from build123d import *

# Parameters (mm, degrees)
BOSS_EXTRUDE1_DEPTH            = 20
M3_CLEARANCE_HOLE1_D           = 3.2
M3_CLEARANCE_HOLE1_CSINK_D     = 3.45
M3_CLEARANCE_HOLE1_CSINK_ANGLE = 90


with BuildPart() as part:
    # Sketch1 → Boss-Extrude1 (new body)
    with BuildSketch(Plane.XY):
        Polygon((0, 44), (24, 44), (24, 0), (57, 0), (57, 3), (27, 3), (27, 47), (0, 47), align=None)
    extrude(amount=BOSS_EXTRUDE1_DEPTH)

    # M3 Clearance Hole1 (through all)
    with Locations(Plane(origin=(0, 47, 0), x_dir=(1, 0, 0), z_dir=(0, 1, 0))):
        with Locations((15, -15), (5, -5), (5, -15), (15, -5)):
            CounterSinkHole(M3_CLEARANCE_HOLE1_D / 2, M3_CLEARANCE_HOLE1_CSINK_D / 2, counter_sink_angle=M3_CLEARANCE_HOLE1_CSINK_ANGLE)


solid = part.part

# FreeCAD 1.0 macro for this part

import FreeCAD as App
import Part
import Sketcher
from FreeCAD import Vector


def add_polygon(sketch, points):
    """Adds a closed chain of lines whose ends are joined by coincident constraints."""
    first, n = sketch.GeometryCount, len(points)
    for a, b in zip(points, points[1:] + points[:1]):
        sketch.addGeometry(Part.LineSegment(App.Vector(*a, 0), App.Vector(*b, 0)), False)
    for i in range(n):
        sketch.addConstraint(Sketcher.Constraint("Coincident", first + i, 2, first + (i + 1) % n, 1))

doc = App.newDocument("Part")
params = doc.addObject("Spreadsheet::Sheet", "Params")
for row, (alias, value) in enumerate([
    ("sketch1_width", "24 mm"),
    ("sketch1_width2", "33 mm"),
    ("sketch1_width3", "30 mm"),
    ("sketch1_height", "44 mm"),
    ("sketch1_height2", "3 mm"),
    ("pad1_length", "20 mm"),
    ("sketch2_diameter", "3.2 mm"),
    ("hole_diameter", "3.2 mm"),
    ("hole_csink_diameter", "3.45 mm"),
], start=1):
    params.set(f"A{row}", alias)
    params.set(f"B{row}", "=" + value)
    params.setAlias(f"B{row}", alias)

body = doc.addObject("PartDesign::Body", "Body")

sketch1 = body.newObject("Sketcher::SketchObject", "Sketch")
sketch1.AttachmentSupport = (doc.getObject("XY_Plane"), [""])
sketch1.MapMode = "FlatFace"
add_polygon(sketch1, [(0, 44), (24, 44), (24, 0), (57, 0), (57, 3), (27, 3), (27, 47), (0, 47)])
sketch1.addConstraint([
    Sketcher.Constraint("Horizontal", 0),
    Sketcher.Constraint("Vertical", 1),
    Sketcher.Constraint("Horizontal", 2),
    Sketcher.Constraint("Vertical", 3),
    Sketcher.Constraint("Horizontal", 4),
    Sketcher.Constraint("Vertical", 5),
    Sketcher.Constraint("Horizontal", 6),
    Sketcher.Constraint("Vertical", 7),
    Sketcher.Constraint("PointOnObject", 1, 2, -1),
    Sketcher.Constraint("PointOnObject", 6, 2, -2),
    Sketcher.Constraint("Equal", 1, 5),
    Sketcher.Constraint("DistanceX", 0, 1, 0, 2, 24.0),
    Sketcher.Constraint("DistanceX", 2, 1, 2, 2, 33.0),
    Sketcher.Constraint("DistanceX", 4, 2, 4, 1, 30.0),
    Sketcher.Constraint("DistanceY", 1, 2, 1, 1, 44.0),
    Sketcher.Constraint("DistanceY", 3, 1, 3, 2, 3.0),
])
sketch1.setExpression("Constraints[19]", "Params.sketch1_width")
sketch1.setExpression("Constraints[20]", "Params.sketch1_width2")
sketch1.setExpression("Constraints[21]", "Params.sketch1_width3")
sketch1.setExpression("Constraints[22]", "Params.sketch1_height")
sketch1.setExpression("Constraints[23]", "Params.sketch1_height2")
pad1 = body.newObject("PartDesign::Pad", "Pad")
pad1.Profile = sketch1
pad1.setExpression("Length", "Params.pad1_length")

sketch2 = body.newObject("Sketcher::SketchObject", "Sketch001")
sketch2.AttachmentSupport = (doc.getObject("XZ_Plane"), [""])
sketch2.MapMode = "FlatFace"
sketch2.AttachmentOffset = App.Placement(Vector(0, 0, -47), App.Rotation())
sketch2.addGeometry([
    Part.Circle(Vector(15, 15, 0), Vector(0, 0, 1), 1.6),
    Part.Circle(Vector(5, 5, 0), Vector(0, 0, 1), 1.6),
    Part.Circle(Vector(5, 15, 0), Vector(0, 0, 1), 1.6),
    Part.Circle(Vector(15, 5, 0), Vector(0, 0, 1), 1.6),
], False)
sketch2.addConstraint([
    Sketcher.Constraint("Equal", 0, 1),
    Sketcher.Constraint("Equal", 1, 2),
    Sketcher.Constraint("Equal", 2, 3),
    Sketcher.Constraint("Horizontal", 0, 3, 2, 3),
    Sketcher.Constraint("Horizontal", 1, 3, 3, 3),
    Sketcher.Constraint("Vertical", 1, 3, 2, 3),
    Sketcher.Constraint("Vertical", 0, 3, 3, 3),
    Sketcher.Constraint("Diameter", 0, 3.2),
    Sketcher.Constraint("DistanceX", -1, 1, 0, 3, 15.0),
    Sketcher.Constraint("DistanceY", -1, 1, 0, 3, 15.0),
    Sketcher.Constraint("DistanceX", -1, 1, 1, 3, 5.0),
    Sketcher.Constraint("DistanceY", -1, 1, 1, 3, 5.0),
])
sketch2.setExpression("Constraints[7]", "Params.sketch2_diameter")
doc.recompute()
hole = body.newObject("PartDesign::Hole", "Hole")
hole.Profile = sketch2
hole.ThreadType = "None"
hole.setExpression("Diameter", "Params.hole_diameter")
hole.DepthType = "ThroughAll"
hole.HoleCutType = "Countersink"
hole.setExpression("HoleCutDiameter", "Params.hole_csink_diameter")
hole.HoleCutCountersinkAngle = 90
hole.Reversed = True

doc.recompute()
